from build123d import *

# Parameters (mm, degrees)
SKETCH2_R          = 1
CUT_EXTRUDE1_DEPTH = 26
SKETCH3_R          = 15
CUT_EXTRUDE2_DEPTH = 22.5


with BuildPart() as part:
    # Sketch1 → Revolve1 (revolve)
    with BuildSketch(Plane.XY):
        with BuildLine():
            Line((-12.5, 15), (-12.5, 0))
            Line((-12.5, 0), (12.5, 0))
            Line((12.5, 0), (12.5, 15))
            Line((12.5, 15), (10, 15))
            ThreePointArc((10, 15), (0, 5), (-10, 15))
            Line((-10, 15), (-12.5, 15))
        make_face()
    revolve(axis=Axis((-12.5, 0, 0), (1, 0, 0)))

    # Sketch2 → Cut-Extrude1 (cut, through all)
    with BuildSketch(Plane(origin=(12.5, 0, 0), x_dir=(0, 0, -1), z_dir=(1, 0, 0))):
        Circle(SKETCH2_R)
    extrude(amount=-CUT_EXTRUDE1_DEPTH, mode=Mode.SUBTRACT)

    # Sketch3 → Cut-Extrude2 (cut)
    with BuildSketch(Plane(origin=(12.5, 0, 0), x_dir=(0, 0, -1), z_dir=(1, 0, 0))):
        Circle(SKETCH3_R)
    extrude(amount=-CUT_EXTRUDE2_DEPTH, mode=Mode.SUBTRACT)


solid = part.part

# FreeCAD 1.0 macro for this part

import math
import FreeCAD as App
import Part
import Sketcher

V = App.Vector

doc = App.newDocument("Part")
body = doc.addObject("PartDesign::Body", "Body")

sketch1 = body.newObject("Sketcher::SketchObject", "Sketch")
sketch1.AttachmentSupport = (doc.getObject("XY_Plane"), [""])
sketch1.MapMode = "FlatFace"
sketch1.addGeometry(Part.LineSegment(V(-12.5, 15, 0), V(-12.5, 0, 0)), False)
sketch1.addGeometry(Part.LineSegment(V(-12.5, 0, 0), V(12.5, 0, 0)), False)
sketch1.addGeometry(Part.LineSegment(V(12.5, 0, 0), V(12.5, 15, 0)), False)
sketch1.addGeometry(Part.LineSegment(V(12.5, 15, 0), V(10, 15, 0)), False)
sketch1.addGeometry(Part.ArcOfCircle(Part.Circle(V(0, 15, 0), V(0, 0, 1), 10), math.radians(180), math.radians(360)), False)
sketch1.addGeometry(Part.LineSegment(V(-10, 15, 0), V(-12.5, 15, 0)), False)
sketch1.addConstraint(Sketcher.Constraint("Coincident", 0, 2, 1, 1))
sketch1.addConstraint(Sketcher.Constraint("Coincident", 1, 2, 2, 1))
sketch1.addConstraint(Sketcher.Constraint("Coincident", 2, 2, 3, 1))
sketch1.addConstraint(Sketcher.Constraint("Coincident", 3, 2, 4, 2))
sketch1.addConstraint(Sketcher.Constraint("Coincident", 4, 1, 5, 1))
sketch1.addConstraint(Sketcher.Constraint("Coincident", 5, 2, 0, 1))
sketch1.addConstraint(Sketcher.Constraint("Vertical", 0))
sketch1.addConstraint(Sketcher.Constraint("Horizontal", 1))
sketch1.addConstraint(Sketcher.Constraint("Vertical", 2))
sketch1.addConstraint(Sketcher.Constraint("Horizontal", 3))
sketch1.addConstraint(Sketcher.Constraint("Horizontal", 5))
sketch1.addConstraint(Sketcher.Constraint("Symmetric", 0, 2, 1, 2, -1, 1))
sketch1.addConstraint(Sketcher.Constraint("Symmetric", 3, 2, 4, 1, -2))
sketch1.addConstraint(Sketcher.Constraint("Horizontal", 4, 3, 2, 2))
sketch1.addConstraint(Sketcher.Constraint("Radius", 4, 10.0))
sketch1.addConstraint(Sketcher.Constraint("DistanceX", 1, 1, 1, 2, 25.0))
sketch1.addConstraint(Sketcher.Constraint("DistanceY", 0, 2, 0, 1, 15.0))
revolution = body.newObject("PartDesign::Revolution", "Revolution")
revolution.Profile = sketch1
revolution.ReferenceAxis = (sketch1, ["H_Axis"])
revolution.Angle = 360

sketch2 = body.newObject("Sketcher::SketchObject", "Sketch001")
sketch2.AttachmentSupport = (doc.getObject("YZ_Plane"), [""])
sketch2.MapMode = "FlatFace"
sketch2.AttachmentOffset = App.Placement(V(0, 0, 12.5), App.Rotation())
sketch2.addGeometry(Part.Circle(V(0, 0, 0), V(0, 0, 1), 1), False)
sketch2.addConstraint(Sketcher.Constraint("Coincident", 0, 3, -1, 1))
sketch2.addConstraint(Sketcher.Constraint("Diameter", 0, 2.0))
pocket1 = body.newObject("PartDesign::Pocket", "Pocket")
pocket1.Profile = sketch2
pocket1.Type = "ThroughAll"

sketch3 = body.newObject("Sketcher::SketchObject", "Sketch002")
sketch3.AttachmentSupport = (doc.getObject("YZ_Plane"), [""])
sketch3.MapMode = "FlatFace"
sketch3.AttachmentOffset = App.Placement(V(0, 0, 12.5), App.Rotation())
sketch3.addGeometry(Part.Circle(V(0, 0, 0), V(0, 0, 1), 15), False)
sketch3.addConstraint(Sketcher.Constraint("Coincident", 0, 3, -1, 1))
sketch3.addConstraint(Sketcher.Constraint("Diameter", 0, 30.0))
pocket2 = body.newObject("PartDesign::Pocket", "Pocket001")
pocket2.Profile = sketch3
pocket2.Length = 22.5

doc.recompute()
